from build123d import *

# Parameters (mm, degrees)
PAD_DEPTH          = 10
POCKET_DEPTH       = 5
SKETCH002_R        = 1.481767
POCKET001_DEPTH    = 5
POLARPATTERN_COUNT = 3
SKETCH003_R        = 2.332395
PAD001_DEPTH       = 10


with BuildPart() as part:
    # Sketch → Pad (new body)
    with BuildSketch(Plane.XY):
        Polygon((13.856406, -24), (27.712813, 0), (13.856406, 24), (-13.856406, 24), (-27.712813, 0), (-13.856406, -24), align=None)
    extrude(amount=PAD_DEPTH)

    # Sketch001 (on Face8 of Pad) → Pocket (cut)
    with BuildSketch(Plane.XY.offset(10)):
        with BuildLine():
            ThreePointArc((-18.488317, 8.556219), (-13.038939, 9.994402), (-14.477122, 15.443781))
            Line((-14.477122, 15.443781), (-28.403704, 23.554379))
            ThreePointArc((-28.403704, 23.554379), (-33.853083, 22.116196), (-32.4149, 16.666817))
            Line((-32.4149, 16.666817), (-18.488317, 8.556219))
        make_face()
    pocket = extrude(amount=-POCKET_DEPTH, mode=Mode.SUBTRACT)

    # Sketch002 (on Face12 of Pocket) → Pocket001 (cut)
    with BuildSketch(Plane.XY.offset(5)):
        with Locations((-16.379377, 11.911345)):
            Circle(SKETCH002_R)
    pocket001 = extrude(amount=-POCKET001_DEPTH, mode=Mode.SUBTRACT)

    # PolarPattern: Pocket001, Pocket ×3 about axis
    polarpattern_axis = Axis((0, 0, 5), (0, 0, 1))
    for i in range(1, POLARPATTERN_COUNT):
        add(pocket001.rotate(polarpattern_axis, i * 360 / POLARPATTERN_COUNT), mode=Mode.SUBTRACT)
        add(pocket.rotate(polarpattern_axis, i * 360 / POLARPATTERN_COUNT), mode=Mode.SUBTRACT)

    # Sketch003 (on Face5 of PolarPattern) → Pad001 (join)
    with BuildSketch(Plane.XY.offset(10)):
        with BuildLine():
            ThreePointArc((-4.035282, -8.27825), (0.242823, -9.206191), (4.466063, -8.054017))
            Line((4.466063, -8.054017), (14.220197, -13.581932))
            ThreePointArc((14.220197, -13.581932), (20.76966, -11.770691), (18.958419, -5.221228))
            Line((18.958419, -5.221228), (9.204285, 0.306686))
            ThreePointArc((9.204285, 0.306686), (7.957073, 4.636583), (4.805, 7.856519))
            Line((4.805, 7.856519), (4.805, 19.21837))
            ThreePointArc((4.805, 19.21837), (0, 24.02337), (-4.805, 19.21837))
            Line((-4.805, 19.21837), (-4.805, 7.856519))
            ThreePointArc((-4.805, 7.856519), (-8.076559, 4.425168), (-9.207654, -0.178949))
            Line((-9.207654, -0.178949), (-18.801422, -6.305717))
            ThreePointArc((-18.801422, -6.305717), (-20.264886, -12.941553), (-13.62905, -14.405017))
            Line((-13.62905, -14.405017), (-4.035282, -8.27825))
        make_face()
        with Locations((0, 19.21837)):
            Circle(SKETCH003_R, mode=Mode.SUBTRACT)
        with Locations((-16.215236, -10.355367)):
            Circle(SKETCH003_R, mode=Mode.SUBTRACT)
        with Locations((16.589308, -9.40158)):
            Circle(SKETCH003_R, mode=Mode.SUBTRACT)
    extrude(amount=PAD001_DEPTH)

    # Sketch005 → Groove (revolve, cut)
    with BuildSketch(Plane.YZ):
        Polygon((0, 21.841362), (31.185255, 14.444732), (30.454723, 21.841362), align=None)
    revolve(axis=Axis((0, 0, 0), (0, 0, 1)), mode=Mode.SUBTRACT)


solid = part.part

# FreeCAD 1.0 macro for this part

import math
import FreeCAD as App
import Part
import Sketcher

V = App.Vector
Q = App.Units.Quantity

doc = App.newDocument("Part")
body = doc.addObject("PartDesign::Body", "Body")

sketch1 = body.newObject("Sketcher::SketchObject", "Sketch")
sketch1.AttachmentSupport = (doc.getObject("XY_Plane"), [""])
sketch1.MapMode = "FlatFace"
sketch1.addGeometry([
    Part.LineSegment(V(13.856406, -24, 0), V(27.712813, 0, 0)),
    Part.LineSegment(V(27.712813, 0, 0), V(13.856406, 24, 0)),
    Part.LineSegment(V(13.856406, 24, 0), V(-13.856406, 24, 0)),
    Part.LineSegment(V(-13.856406, 24, 0), V(-27.712813, 0, 0)),
    Part.LineSegment(V(-27.712813, 0, 0), V(-13.856406, -24, 0)),
    Part.LineSegment(V(-13.856406, -24, 0), V(13.856406, -24, 0)),
], False)
sketch1.addConstraint([
    Sketcher.Constraint("Coincident", 0, 2, 1, 1),
    Sketcher.Constraint("Coincident", 1, 2, 2, 1),
    Sketcher.Constraint("Coincident", 2, 2, 3, 1),
    Sketcher.Constraint("Coincident", 3, 2, 4, 1),
    Sketcher.Constraint("Coincident", 4, 2, 5, 1),
    Sketcher.Constraint("Coincident", 5, 2, 0, 1),
    Sketcher.Constraint("Horizontal", 2),
    Sketcher.Constraint("Horizontal", 5),
    Sketcher.Constraint("Symmetric", 0, 2, 3, 2, -1, 1),
    Sketcher.Constraint("Symmetric", 1, 2, 4, 2, -1, 1),
    Sketcher.Constraint("PointOnObject", 0, 2, -1),
    Sketcher.Constraint("Parallel", 0, 3),
    Sketcher.Constraint("Vertical", 2, 2, 4, 2),
    Sketcher.Constraint("Angle", 0, Q("59.999999 deg")),
    Sketcher.Constraint("DistanceY", -1, 1, 1, 2, Q("24 mm")),
    Sketcher.Constraint("DistanceX", 2, 2, 2, 1, Q("27.712812 mm")),
])
pad1 = body.newObject("PartDesign::Pad", "Pad")
pad1.Profile = sketch1
pad1.Length = 10

sketch2 = body.newObject("Sketcher::SketchObject", "Sketch001")
sketch2.AttachmentSupport = (doc.getObject("XY_Plane"), [""])
sketch2.MapMode = "FlatFace"
sketch2.AttachmentOffset = App.Placement(V(0, 0, 10), App.Rotation())
sketch2.addGeometry([
    Part.ArcOfCircle(Part.Circle(V(-16.48272, 12, 0), V(0, 0, 1), 3.985229), math.radians(-120.215767), math.radians(59.784228)),
    Part.LineSegment(V(-14.477122, 15.443781, 0), V(-28.403704, 23.554379, 0)),
    Part.ArcOfCircle(Part.Circle(V(-30.409302, 20.110598, 0), V(0, 0, 1), 3.985229), math.radians(59.784224), math.radians(239.784224)),
    Part.LineSegment(V(-32.4149, 16.666817, 0), V(-18.488317, 8.556219, 0)),
], False)
sketch2.addConstraint([
    Sketcher.Constraint("Tangent", 0, 2, 1, 1),
    Sketcher.Constraint("Tangent", 1, 2, 2, 1),
    Sketcher.Constraint("Tangent", 2, 2, 3, 1),
    Sketcher.Constraint("Tangent", 3, 2, 0, 1),
    Sketcher.Constraint("Equal", 0, 2),
    Sketcher.Constraint("DistanceY", -1, 1, 0, 3, Q("12 mm")),
    Sketcher.Constraint("Radius", 0, Q("3.985229 mm")),
    Sketcher.Constraint("DistanceX", 2, 3, -1, 1, Q("30.409302 mm")),
    Sketcher.Constraint("DistanceX", 2, 2, -1, 1, Q("32.4149 mm")),
    Sketcher.Constraint("DistanceX", 0, 3, -1, 1, Q("16.48272 mm")),
])
pocket1 = body.newObject("PartDesign::Pocket", "Pocket")
pocket1.Profile = sketch2
pocket1.Length = 5

sketch3 = body.newObject("Sketcher::SketchObject", "Sketch002")
sketch3.AttachmentSupport = (doc.getObject("XY_Plane"), [""])
sketch3.MapMode = "FlatFace"
sketch3.AttachmentOffset = App.Placement(V(0, 0, 5), App.Rotation())
sketch3.addGeometry(Part.Circle(V(-16.379377, 11.911345, 0), V(0, 0, 1), 1.481767), False)
sketch3.addConstraint([
    Sketcher.Constraint("Diameter", 0, Q("2.963534 mm")),
    Sketcher.Constraint("DistanceX", 0, 3, -1, 1, Q("16.379377 mm")),
    Sketcher.Constraint("DistanceY", -1, 1, 0, 3, Q("11.911345 mm")),
])
pocket2 = body.newObject("PartDesign::Pocket", "Pocket001")
pocket2.Profile = sketch3
pocket2.Length = 5
doc.recompute()

polarpattern = body.newObject("PartDesign::PolarPattern", "PolarPattern")
polarpattern.Originals = [pocket2, pocket1]
polarpattern.Axis = (doc.getObject("Z_Axis"), [""])
polarpattern.Angle = 360
polarpattern.Occurrences = 3
body.Tip = polarpattern

sketch4 = body.newObject("Sketcher::SketchObject", "Sketch003")
sketch4.AttachmentSupport = (doc.getObject("XY_Plane"), [""])
sketch4.MapMode = "FlatFace"
sketch4.AttachmentOffset = App.Placement(V(0, 0, 10), App.Rotation())
sketch4.addGeometry([
    Part.ArcOfCircle(Part.Circle(V(-0.000001, 0, 0), V(0, 0, 1), 9.209393), math.radians(-115.987187), math.radians(-60.991026)),
    Part.LineSegment(V(4.466063, -8.054017, 0), V(14.220197, -13.581932, 0)),
    Part.ArcOfCircle(Part.Circle(V(16.589308, -9.40158, 0), V(0, 0, 1), 4.805), math.radians(-119.541323), math.radians(60.458677)),
    Part.LineSegment(V(18.958419, -5.221228, 0), V(9.204285, 0.306686, 0)),
    Part.ArcOfCircle(Part.Circle(V(-0.000002, -0.000001, 0), V(0, 0, 1), 9.209395), math.radians(1.908392), math.radians(58.550288)),
    Part.LineSegment(V(4.805, 7.856519, 0), V(4.805, 19.21837, 0)),
    Part.ArcOfCircle(Part.Circle(V(0, 19.21837, 0), V(0, 0, 1), 4.805), math.radians(0), math.radians(180)),
    Part.LineSegment(V(-4.805, 19.21837, 0), V(-4.805, 7.856519, 0)),
    Part.ArcOfCircle(Part.Circle(V(-0.000001, 0, 0), V(0, 0, 1), 9.209392), math.radians(121.449704), math.radians(181.113395)),
    Part.LineSegment(V(-9.207654, -0.178949, 0), V(-18.801422, -6.305717, 0)),
    Part.ArcOfCircle(Part.Circle(V(-16.215236, -10.355367, 0), V(0, 0, 1), 4.805), math.radians(122.5631), math.radians(302.5631)),
    Part.LineSegment(V(-13.62905, -14.405017, 0), V(-4.035282, -8.27825, 0)),
    Part.Circle(V(-16.215236, -10.355367, 0), V(0, 0, 1), 2.332395),
    Part.Circle(V(16.589308, -9.40158, 0), V(0, 0, 1), 2.332395),
    Part.Circle(V(0, 19.21837, 0), V(0, 0, 1), 2.332395),
], False)
sketch4.addConstraint([
    Sketcher.Constraint("Coincident", 0, 2, 1, 1),
    Sketcher.Constraint("Tangent", 1, 2, 2, 1),
    Sketcher.Constraint("Tangent", 2, 2, 3, 1),
    Sketcher.Constraint("Coincident", 3, 2, 4, 1),
    Sketcher.Constraint("Coincident", 4, 2, 5, 1),
    Sketcher.Constraint("Tangent", 5, 2, 6, 1),
    Sketcher.Constraint("Tangent", 6, 2, 7, 1),
    Sketcher.Constraint("Coincident", 7, 2, 8, 1),
    Sketcher.Constraint("Coincident", 8, 2, 9, 1),
    Sketcher.Constraint("Tangent", 9, 2, 10, 1),
    Sketcher.Constraint("Tangent", 10, 2, 11, 1),
    Sketcher.Constraint("Coincident", 11, 2, 0, 1),
    Sketcher.Constraint("Vertical", 5),
    Sketcher.Constraint("Vertical", 7),
    Sketcher.Constraint("Coincident", 0, 3, -1, 1),
    Sketcher.Constraint("Coincident", 4, 3, -1, 1),
    Sketcher.Constraint("Coincident", 8, 3, -1, 1),
    Sketcher.Constraint("Coincident", 12, 3, 10, 3),
    Sketcher.Constraint("Coincident", 13, 3, 2, 3),
    Sketcher.Constraint("Coincident", 14, 3, 6, 3),
    Sketcher.Constraint("Equal", 0, 4),
    Sketcher.Constraint("Equal", 2, 6),
    Sketcher.Constraint("Equal", 0, 8),
    Sketcher.Constraint("Equal", 6, 10),
    Sketcher.Constraint("Equal", 12, 13),
    Sketcher.Constraint("Equal", 13, 14),
    Sketcher.Constraint("PointOnObject", 6, 3, -2),
    Sketcher.Constraint("Parallel", 1, 3),
    Sketcher.Constraint("Parallel", 9, 11),
    Sketcher.Constraint("Equal", 1, 3),
    Sketcher.Constraint("Equal", 9, 11),
    Sketcher.Constraint("Radius", 2, Q("4.805 mm")),
    Sketcher.Constraint("Diameter", 12, Q("4.66479 mm")),
    Sketcher.Constraint("Radius", 0, Q("9.209393 mm")),
    Sketcher.Constraint("DistanceY", 10, 2, 0, 2, Q("6.351 mm")),
    Sketcher.Constraint("DistanceY", 5, 1, 5, 2, Q("11.361851 mm")),
    Sketcher.Constraint("DistanceX", 4, 3, 1, 2, Q("14.220199 mm")),
    Sketcher.Constraint("DistanceY", 10, 2, 9, 2, Q("8.0993 mm")),
    Sketcher.Constraint("Distance", 9, Q("11.383219 mm")),
])
pad2 = body.newObject("PartDesign::Pad", "Pad001")
pad2.Profile = sketch4
pad2.Length = 10

sketch5 = body.newObject("Sketcher::SketchObject", "Sketch004")
sketch5.AttachmentSupport = (doc.getObject("YZ_Plane"), [""])
sketch5.MapMode = "FlatFace"
sketch5.addGeometry([
    Part.LineSegment(V(0, 21.841362, 0), V(31.185255, 14.444732, 0)),
    Part.LineSegment(V(31.185255, 14.444732, 0), V(30.454723, 21.841362, 0)),
    Part.LineSegment(V(30.454723, 21.841362, 0), V(0, 21.841362, 0)),
], False)
sketch5.addConstraint([
    Sketcher.Constraint("Coincident", 0, 2, 1, 1),
    Sketcher.Constraint("Coincident", 1, 2, 2, 1),
    Sketcher.Constraint("Coincident", 2, 2, 0, 1),
    Sketcher.Constraint("Horizontal", 2),
    Sketcher.Constraint("PointOnObject", 2, 2, -2),
    Sketcher.Constraint("Distance", 1, Q("7.432618 mm")),
    Sketcher.Constraint("DistanceX", 2, 2, 2, 1, Q("30.454723 mm")),
    Sketcher.Constraint("DistanceY", -1, 1, 1, 2, Q("21.841362 mm")),
    Sketcher.Constraint("DistanceY", 0, 2, 1, 2, Q("7.39663 mm")),
])
groove = body.newObject("PartDesign::Groove", "Groove")
groove.Profile = sketch5
groove.ReferenceAxis = (sketch5, ["V_Axis"])
groove.Angle = 360

doc.recompute()
